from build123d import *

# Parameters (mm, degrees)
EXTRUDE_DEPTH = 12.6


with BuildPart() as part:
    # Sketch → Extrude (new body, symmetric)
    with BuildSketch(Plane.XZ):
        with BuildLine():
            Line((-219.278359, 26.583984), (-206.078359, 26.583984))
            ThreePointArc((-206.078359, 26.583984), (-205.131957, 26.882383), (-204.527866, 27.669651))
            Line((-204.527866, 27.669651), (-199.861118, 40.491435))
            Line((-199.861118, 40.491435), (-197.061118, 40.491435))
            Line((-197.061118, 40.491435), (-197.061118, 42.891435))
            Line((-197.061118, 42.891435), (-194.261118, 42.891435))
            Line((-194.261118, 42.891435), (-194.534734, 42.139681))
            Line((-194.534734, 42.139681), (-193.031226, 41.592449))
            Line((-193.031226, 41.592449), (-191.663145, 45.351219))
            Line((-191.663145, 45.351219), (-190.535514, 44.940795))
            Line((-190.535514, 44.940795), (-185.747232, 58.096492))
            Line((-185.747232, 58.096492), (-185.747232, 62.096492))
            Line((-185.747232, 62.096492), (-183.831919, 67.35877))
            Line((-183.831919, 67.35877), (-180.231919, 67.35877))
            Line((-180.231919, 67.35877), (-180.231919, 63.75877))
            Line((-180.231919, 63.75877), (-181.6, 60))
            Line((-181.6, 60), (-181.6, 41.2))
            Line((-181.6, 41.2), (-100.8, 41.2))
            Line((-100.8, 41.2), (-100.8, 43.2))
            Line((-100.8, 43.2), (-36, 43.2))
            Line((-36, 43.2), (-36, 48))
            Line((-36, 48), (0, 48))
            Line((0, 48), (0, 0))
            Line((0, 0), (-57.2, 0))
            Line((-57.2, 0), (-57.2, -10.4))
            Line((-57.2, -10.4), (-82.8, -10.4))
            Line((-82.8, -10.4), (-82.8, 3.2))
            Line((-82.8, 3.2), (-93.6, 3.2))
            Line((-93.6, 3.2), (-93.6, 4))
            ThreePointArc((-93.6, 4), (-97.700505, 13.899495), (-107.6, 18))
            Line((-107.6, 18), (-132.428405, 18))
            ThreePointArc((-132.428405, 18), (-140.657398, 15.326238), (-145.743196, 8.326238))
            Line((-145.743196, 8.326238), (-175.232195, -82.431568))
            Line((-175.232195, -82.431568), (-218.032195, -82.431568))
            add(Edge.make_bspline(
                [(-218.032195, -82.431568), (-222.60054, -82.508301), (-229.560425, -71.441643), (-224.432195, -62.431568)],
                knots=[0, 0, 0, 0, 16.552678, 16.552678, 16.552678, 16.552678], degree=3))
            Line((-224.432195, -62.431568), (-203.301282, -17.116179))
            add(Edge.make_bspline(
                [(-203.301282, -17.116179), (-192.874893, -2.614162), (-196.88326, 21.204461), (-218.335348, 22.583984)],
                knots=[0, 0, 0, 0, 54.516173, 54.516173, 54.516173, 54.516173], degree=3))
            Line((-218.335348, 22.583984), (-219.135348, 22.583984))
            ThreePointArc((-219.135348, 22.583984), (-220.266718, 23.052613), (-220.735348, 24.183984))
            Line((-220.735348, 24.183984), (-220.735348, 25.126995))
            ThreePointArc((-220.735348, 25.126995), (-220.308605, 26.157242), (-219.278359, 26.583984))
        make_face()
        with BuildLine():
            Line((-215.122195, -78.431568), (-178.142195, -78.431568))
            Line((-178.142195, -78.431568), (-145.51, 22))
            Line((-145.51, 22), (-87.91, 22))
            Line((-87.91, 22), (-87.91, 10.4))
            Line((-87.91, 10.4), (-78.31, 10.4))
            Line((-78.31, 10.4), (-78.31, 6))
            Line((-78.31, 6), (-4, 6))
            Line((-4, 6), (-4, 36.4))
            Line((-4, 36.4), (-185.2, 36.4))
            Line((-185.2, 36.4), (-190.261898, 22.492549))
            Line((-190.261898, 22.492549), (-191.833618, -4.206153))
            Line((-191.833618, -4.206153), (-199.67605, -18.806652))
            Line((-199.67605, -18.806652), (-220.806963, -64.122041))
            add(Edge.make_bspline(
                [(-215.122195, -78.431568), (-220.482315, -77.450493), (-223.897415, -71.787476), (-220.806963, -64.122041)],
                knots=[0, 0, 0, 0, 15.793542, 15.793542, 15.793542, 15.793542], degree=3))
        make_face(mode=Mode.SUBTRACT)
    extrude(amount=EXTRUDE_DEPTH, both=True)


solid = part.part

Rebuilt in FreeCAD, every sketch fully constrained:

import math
import FreeCAD as App
import Part
import Sketcher

V = App.Vector
Q = App.Units.Quantity

doc = App.newDocument("Part")
body = doc.addObject("PartDesign::Body", "Body")

# Sketch on XZ plane
sketch1 = doc.addObject("Sketcher::SketchObject", "Sketch")
body.addObject(sketch1)
sketch1.AttachmentSupport = (doc.XZ_Plane, [""])
sketch1.MapMode = "FlatFace"
sketch1.addGeometry([
    Part.LineSegment(V(-206.078359, 26.583984, 0), V(-219.278359, 26.583984, 0)),  # 0
    Part.ArcOfCircle(Part.Circle(V(-219.278358, 25.126994, 0), V(0, 0, 1), 1.45699), math.radians(90.000041), math.radians(179.999959)),  # 1
    Part.LineSegment(V(-220.735348, 25.126995, 0), V(-220.735348, 24.183984, 0)),  # 2
    Part.ArcOfCircle(Part.Circle(V(-219.135347, 24.183985, 0), V(0, 0, 1), 1.600001), math.radians(-179.999957), math.radians(-90.000043)),  # 3
    Part.LineSegment(V(-219.135348, 22.583984, 0), V(-218.335348, 22.583984, 0)),  # 4
    Part.BSplineCurve([V(-203.301282, -17.116179, 0), V(-192.874893, -2.614162, 0), V(-196.88326, 21.204461, 0), V(-218.335348, 22.583984, 0)], [4, 4], [0, 54.516173], False, 3, [1, 1, 1, 1], False),  # 5
    Part.LineSegment(V(-203.301282, -17.116179, 0), V(-224.432195, -62.431568, 0)),  # 6
    Part.BSplineCurve([V(-218.032195, -82.431568, 0), V(-222.60054, -82.508301, 0), V(-229.560425, -71.441643, 0), V(-224.432195, -62.431568, 0)], [4, 4], [0, 16.552678], False, 3, [1, 1, 1, 1], False),  # 7
    Part.LineSegment(V(-218.032195, -82.431568, 0), V(-175.232195, -82.431568, 0)),  # 8
    Part.LineSegment(V(-175.232195, -82.431568, 0), V(-145.743196, 8.326238, 0)),  # 9
    Part.ArcOfCircle(Part.Circle(V(-132.428404, 3.999999, 0), V(0, 0, 1), 14.000001), math.radians(90.000002), math.radians(161.999998)),  # 10
    Part.LineSegment(V(-132.428405, 18, 0), V(-107.6, 18, 0)),  # 11
    Part.ArcOfCircle(Part.Circle(V(-107.6, 4, 0), V(0, 0, 1), 14), math.radians(-0.000001), math.radians(90.000001)),  # 12
    Part.LineSegment(V(-93.6, 4, 0), V(-93.6, 3.2, 0)),  # 13
    Part.LineSegment(V(-93.6, 3.2, 0), V(-82.8, 3.2, 0)),  # 14
    Part.LineSegment(V(-82.8, 3.2, 0), V(-82.8, -10.4, 0)),  # 15
    Part.LineSegment(V(-82.8, -10.4, 0), V(-57.2, -10.4, 0)),  # 16
    Part.LineSegment(V(-57.2, -10.4, 0), V(-57.2, 0, 0)),  # 17
    Part.LineSegment(V(-57.2, 0, 0), V(0, 0, 0)),  # 18
    Part.LineSegment(V(0, 0, 0), V(0, 48, 0)),  # 19
    Part.LineSegment(V(0, 48, 0), V(-36, 48, 0)),  # 20
    Part.LineSegment(V(-36, 48, 0), V(-36, 43.2, 0)),  # 21
    Part.LineSegment(V(-36, 43.2, 0), V(-100.8, 43.2, 0)),  # 22
    Part.LineSegment(V(-100.8, 43.2, 0), V(-100.8, 41.2, 0)),  # 23
    Part.LineSegment(V(-100.8, 41.2, 0), V(-181.6, 41.2, 0)),  # 24
    Part.LineSegment(V(-181.6, 41.2, 0), V(-181.6, 60, 0)),  # 25
    Part.LineSegment(V(-181.6, 60, 0), V(-180.231919, 63.75877, 0)),  # 26
    Part.LineSegment(V(-180.231919, 63.75877, 0), V(-180.231919, 67.35877, 0)),  # 27
    Part.LineSegment(V(-180.231919, 67.35877, 0), V(-183.831919, 67.35877, 0)),  # 28
    Part.LineSegment(V(-183.831919, 67.35877, 0), V(-185.747232, 62.096492, 0)),  # 29
    Part.LineSegment(V(-185.747232, 62.096492, 0), V(-185.747232, 58.096492, 0)),  # 30
    Part.LineSegment(V(-185.747232, 58.096492, 0), V(-190.535514, 44.940795, 0)),  # 31
    Part.LineSegment(V(-190.535514, 44.940795, 0), V(-191.663145, 45.351219, 0)),  # 32
    Part.LineSegment(V(-191.663145, 45.351219, 0), V(-193.031226, 41.592449, 0)),  # 33
    Part.LineSegment(V(-193.031226, 41.592449, 0), V(-194.534734, 42.139681, 0)),  # 34
    Part.LineSegment(V(-194.534734, 42.139681, 0), V(-194.261118, 42.891435, 0)),  # 35
    Part.LineSegment(V(-194.261118, 42.891435, 0), V(-197.061118, 42.891435, 0)),  # 36
    Part.LineSegment(V(-197.061118, 42.891435, 0), V(-197.061118, 40.491435, 0)),  # 37
    Part.LineSegment(V(-197.061118, 40.491435, 0), V(-199.861118, 40.491435, 0)),  # 38
    Part.LineSegment(V(-199.861118, 40.491435, 0), V(-204.527866, 27.669651, 0)),  # 39
    Part.ArcOfCircle(Part.Circle(V(-206.078357, 28.233981, 0), V(0, 0, 1), 1.649997), math.radians(-90.000064), math.radians(-19.99993)),  # 40
    Part.BSplineCurve([V(-215.122195, -78.431568, 0), V(-220.482315, -77.450493, 0), V(-223.897415, -71.787476, 0), V(-220.806963, -64.122041, 0)], [4, 4], [0, 15.793542], False, 3, [1, 1, 1, 1], False),  # 41
    Part.LineSegment(V(-220.806963, -64.122041, 0), V(-199.67605, -18.806652, 0)),  # 42
    Part.LineSegment(V(-199.67605, -18.806652, 0), V(-191.833618, -4.206153, 0)),  # 43
    Part.LineSegment(V(-191.833618, -4.206153, 0), V(-190.261898, 22.492549, 0)),  # 44
    Part.LineSegment(V(-190.261898, 22.492549, 0), V(-185.2, 36.4, 0)),  # 45
    Part.LineSegment(V(-185.2, 36.4, 0), V(-4, 36.4, 0)),  # 46
    Part.LineSegment(V(-4, 36.4, 0), V(-4, 6, 0)),  # 47
    Part.LineSegment(V(-4, 6, 0), V(-78.31, 6, 0)),  # 48
    Part.LineSegment(V(-78.31, 6, 0), V(-78.31, 10.4, 0)),  # 49
    Part.LineSegment(V(-78.31, 10.4, 0), V(-87.91, 10.4, 0)),  # 50
    Part.LineSegment(V(-87.91, 10.4, 0), V(-87.91, 22, 0)),  # 51
    Part.LineSegment(V(-87.91, 22, 0), V(-145.51, 22, 0)),  # 52
    Part.LineSegment(V(-145.51, 22, 0), V(-178.142195, -78.431568, 0)),  # 53
    Part.LineSegment(V(-178.142195, -78.431568, 0), V(-215.122195, -78.431568, 0)),  # 54
], False)
sketch1.addConstraint([
    Sketcher.Constraint("Block", 5),
    Sketcher.Constraint("Block", 7),
    Sketcher.Constraint("Block", 41),
    Sketcher.Constraint("Tangent", 0, 2, 1, 1),
    Sketcher.Constraint("Tangent", 1, 2, 2, 1),
    Sketcher.Constraint("Tangent", 2, 2, 3, 1),
    Sketcher.Constraint("Tangent", 3, 2, 4, 1),
    Sketcher.Constraint("Coincident", 4, 2, 5, 2),
    Sketcher.Constraint("Coincident", 5, 1, 6, 1),
    Sketcher.Constraint("Coincident", 6, 2, 7, 2),
    Sketcher.Constraint("Coincident", 7, 1, 8, 1),
    Sketcher.Constraint("Coincident", 8, 2, 9, 1),
    Sketcher.Constraint("Tangent", 9, 2, 10, 2),
    Sketcher.Constraint("Tangent", 10, 1, 11, 1),
    Sketcher.Constraint("Tangent", 11, 2, 12, 2),
    Sketcher.Constraint("Tangent", 12, 1, 13, 1),
    Sketcher.Constraint("Coincident", 13, 2, 14, 1),
    Sketcher.Constraint("Coincident", 14, 2, 15, 1),
    Sketcher.Constraint("Coincident", 15, 2, 16, 1),
    Sketcher.Constraint("Coincident", 16, 2, 17, 1),
    Sketcher.Constraint("Coincident", 17, 2, 18, 1),
    Sketcher.Constraint("Coincident", 18, 2, 19, 1),
    Sketcher.Constraint("Coincident", 19, 2, 20, 1),
    Sketcher.Constraint("Coincident", 20, 2, 21, 1),
    Sketcher.Constraint("Coincident", 21, 2, 22, 1),
    Sketcher.Constraint("Coincident", 22, 2, 23, 1),
    Sketcher.Constraint("Coincident", 23, 2, 24, 1),
    Sketcher.Constraint("Coincident", 24, 2, 25, 1),
    Sketcher.Constraint("Coincident", 25, 2, 26, 1),
    Sketcher.Constraint("Coincident", 26, 2, 27, 1),
    Sketcher.Constraint("Coincident", 27, 2, 28, 1),
    Sketcher.Constraint("Coincident", 28, 2, 29, 1),
    Sketcher.Constraint("Coincident", 29, 2, 30, 1),
    Sketcher.Constraint("Coincident", 30, 2, 31, 1),
    Sketcher.Constraint("Coincident", 31, 2, 32, 1),
    Sketcher.Constraint("Coincident", 32, 2, 33, 1),
    Sketcher.Constraint("Coincident", 33, 2, 34, 1),
    Sketcher.Constraint("Coincident", 34, 2, 35, 1),
    Sketcher.Constraint("Coincident", 35, 2, 36, 1),
    Sketcher.Constraint("Coincident", 36, 2, 37, 1),
    Sketcher.Constraint("Coincident", 37, 2, 38, 1),
    Sketcher.Constraint("Coincident", 38, 2, 39, 1),
    Sketcher.Constraint("Tangent", 39, 2, 40, 2),
    Sketcher.Constraint("Tangent", 40, 1, 0, 1),
    Sketcher.Constraint("Coincident", 41, 2, 42, 1),
    Sketcher.Constraint("Coincident", 42, 2, 43, 1),
    Sketcher.Constraint("Coincident", 43, 2, 44, 1),
    Sketcher.Constraint("Coincident", 44, 2, 45, 1),
    Sketcher.Constraint("Coincident", 45, 2, 46, 1),
    Sketcher.Constraint("Coincident", 46, 2, 47, 1),
    Sketcher.Constraint("Coincident", 47, 2, 48, 1),
    Sketcher.Constraint("Coincident", 48, 2, 49, 1),
    Sketcher.Constraint("Coincident", 49, 2, 50, 1),
    Sketcher.Constraint("Coincident", 50, 2, 51, 1),
    Sketcher.Constraint("Coincident", 51, 2, 52, 1),
    Sketcher.Constraint("Coincident", 52, 2, 53, 1),
    Sketcher.Constraint("Coincident", 53, 2, 54, 1),
    Sketcher.Constraint("Coincident", 54, 2, 41, 1),
    Sketcher.Constraint("Horizontal", 0),
    Sketcher.Constraint("Vertical", 2),
    Sketcher.Constraint("Horizontal", 4),
    Sketcher.Constraint("Horizontal", 8),
    Sketcher.Constraint("Horizontal", 11),
    Sketcher.Constraint("Vertical", 13),
    Sketcher.Constraint("Horizontal", 14),
    Sketcher.Constraint("Vertical", 15),
    Sketcher.Constraint("Horizontal", 16),
    Sketcher.Constraint("Vertical", 17),
    Sketcher.Constraint("Horizontal", 18),
    Sketcher.Constraint("Vertical", 19),
    Sketcher.Constraint("Horizontal", 20),
    Sketcher.Constraint("Vertical", 21),
    Sketcher.Constraint("Horizontal", 22),
    Sketcher.Constraint("Vertical", 23),
    Sketcher.Constraint("Horizontal", 24),
    Sketcher.Constraint("Vertical", 25),
    Sketcher.Constraint("Vertical", 27),
    Sketcher.Constraint("Horizontal", 28),
    Sketcher.Constraint("Vertical", 30),
    Sketcher.Constraint("Horizontal", 36),
    Sketcher.Constraint("Vertical", 37),
    Sketcher.Constraint("Horizontal", 38),
    Sketcher.Constraint("Horizontal", 46),
    Sketcher.Constraint("Vertical", 47),
    Sketcher.Constraint("Horizontal", 48),
    Sketcher.Constraint("Vertical", 49),
    Sketcher.Constraint("Horizontal", 50),
    Sketcher.Constraint("Vertical", 51),
    Sketcher.Constraint("Horizontal", 52),
    Sketcher.Constraint("Horizontal", 54),
    Sketcher.Constraint("Coincident", 18, 2, -1, 1),
    Sketcher.Constraint("Equal", 10, 12),
    Sketcher.Constraint("Parallel", 26, 29),
    Sketcher.Constraint("Parallel", 29, 31),
    Sketcher.Constraint("Perpendicular", 31, 32),
    Sketcher.Constraint("Perpendicular", 32, 33),
    Sketcher.Constraint("Perpendicular", 33, 34),
    Sketcher.Constraint("Perpendicular", 34, 35),
    Sketcher.Constraint("Parallel", 35, 39),
    Sketcher.Constraint("Parallel", 6, 42),
    Sketcher.Constraint("Parallel", 39, 45),
    Sketcher.Constraint("Parallel", 9, 53),
    Sketcher.Constraint("Equal", 36, 38),
    Sketcher.Constraint("Equal", 4, 13),
    Sketcher.Constraint("Equal", 28, 27),
    Sketcher.Constraint("Equal", 26, 33),
    Sketcher.Constraint("Equal", 6, 42),
    Sketcher.Constraint("Radius", 10, Q("14.000001 mm")),
    Sketcher.Constraint("Radius", 3, Q("1.600001 mm")),
    Sketcher.Constraint("DistanceX", 20, 2, 20, 1, Q("36 mm")),
    Sketcher.Constraint("DistanceY", 19, 1, 19, 2, Q("48 mm")),
    Sketcher.Constraint("DistanceY", 23, 2, 23, 1, Q("2 mm")),
    Sketcher.Constraint("DistanceY", 30, 2, 30, 1, Q("4 mm")),
    Sketcher.Constraint("Angle", 9, Q("72 deg")),
    Sketcher.Constraint("Angle", 26, Q("69.999992 deg")),
    Sketcher.Constraint("Distance", 26, Q("4 mm")),
    Sketcher.Constraint("Distance", 31, Q("14 mm")),
    Sketcher.Constraint("DistanceX", 0, 2, 0, 1, Q("13.2 mm")),
    Sketcher.Constraint("DistanceX", 4, 1, 4, 2, Q("0.8 mm")),
    Sketcher.Constraint("DistanceX", 8, 1, 8, 2, Q("42.8 mm")),
    Sketcher.Constraint("DistanceX", 14, 1, 14, 2, Q("10.8 mm")),
    Sketcher.Constraint("DistanceX", 16, 1, 16, 2, Q("25.6 mm")),
    Sketcher.Constraint("DistanceX", 18, 1, 18, 2, Q("57.2 mm")),
    Sketcher.Constraint("DistanceX", 22, 2, 22, 1, Q("64.8 mm")),
    Sketcher.Constraint("DistanceX", 24, 2, 24, 1, Q("80.8 mm")),
    Sketcher.Constraint("DistanceX", 28, 2, 28, 1, Q("3.6 mm")),
    Sketcher.Constraint("DistanceX", 36, 2, 36, 1, Q("2.8 mm")),
    Sketcher.Constraint("DistanceX", 46, 1, 46, 2, Q("181.2 mm")),
    Sketcher.Constraint("DistanceX", 50, 2, 50, 1, Q("9.6 mm")),
    Sketcher.Constraint("DistanceX", 52, 2, 52, 1, Q("57.6 mm")),
    Sketcher.Constraint("DistanceY", 15, 2, 15, 1, Q("13.6 mm")),
    Sketcher.Constraint("DistanceY", 17, 1, 17, 2, Q("10.4 mm")),
    Sketcher.Constraint("DistanceY", 21, 2, 21, 1, Q("4.8 mm")),
    Sketcher.Constraint("DistanceY", 25, 1, 25, 2, Q("18.8 mm")),
    Sketcher.Constraint("DistanceY", 37, 2, 37, 1, Q("2.4 mm")),
    Sketcher.Constraint("DistanceY", 47, 2, 47, 1, Q("30.4 mm")),
    Sketcher.Constraint("DistanceY", 49, 1, 49, 2, Q("4.4 mm")),
    Sketcher.Constraint("DistanceY", 51, 1, 51, 2, Q("11.6 mm")),
    Sketcher.Constraint("DistanceX", 46, 2, -1, 1, Q("4 mm")),
    Sketcher.Constraint("DistanceY", -1, 1, 47, 2, Q("6 mm")),
    Sketcher.Constraint("DistanceY", 3, 2, 0, 2, Q("4 mm")),
    Sketcher.Constraint("Distance", 29, Q("5.599999 mm")),
    Sketcher.Constraint("Distance", 32, Q("1.2 mm")),
    Sketcher.Constraint("Distance", 34, Q("1.6 mm")),
    Sketcher.Constraint("Distance", 35, Q("0.8 mm")),
    Sketcher.Constraint("Distance", 45, Q("14.8 mm")),
    Sketcher.Constraint("DistanceX", 48, 2, 48, 1, Q("74.31 mm")),
    Sketcher.Constraint("Radius", 1, Q("1.45699 mm")),
    Sketcher.Constraint("DistanceY", 42, 2, 43, 2, Q("14.600499 mm")),
    Sketcher.Constraint("Distance", 43, Q("16.573422 mm")),
])
pad1 = doc.addObject("PartDesign::Pad", "Pad")
body.addObject(pad1)
pad1.Profile = sketch1
pad1.Length = 25.2
pad1.Midplane = True

doc.recompute()
